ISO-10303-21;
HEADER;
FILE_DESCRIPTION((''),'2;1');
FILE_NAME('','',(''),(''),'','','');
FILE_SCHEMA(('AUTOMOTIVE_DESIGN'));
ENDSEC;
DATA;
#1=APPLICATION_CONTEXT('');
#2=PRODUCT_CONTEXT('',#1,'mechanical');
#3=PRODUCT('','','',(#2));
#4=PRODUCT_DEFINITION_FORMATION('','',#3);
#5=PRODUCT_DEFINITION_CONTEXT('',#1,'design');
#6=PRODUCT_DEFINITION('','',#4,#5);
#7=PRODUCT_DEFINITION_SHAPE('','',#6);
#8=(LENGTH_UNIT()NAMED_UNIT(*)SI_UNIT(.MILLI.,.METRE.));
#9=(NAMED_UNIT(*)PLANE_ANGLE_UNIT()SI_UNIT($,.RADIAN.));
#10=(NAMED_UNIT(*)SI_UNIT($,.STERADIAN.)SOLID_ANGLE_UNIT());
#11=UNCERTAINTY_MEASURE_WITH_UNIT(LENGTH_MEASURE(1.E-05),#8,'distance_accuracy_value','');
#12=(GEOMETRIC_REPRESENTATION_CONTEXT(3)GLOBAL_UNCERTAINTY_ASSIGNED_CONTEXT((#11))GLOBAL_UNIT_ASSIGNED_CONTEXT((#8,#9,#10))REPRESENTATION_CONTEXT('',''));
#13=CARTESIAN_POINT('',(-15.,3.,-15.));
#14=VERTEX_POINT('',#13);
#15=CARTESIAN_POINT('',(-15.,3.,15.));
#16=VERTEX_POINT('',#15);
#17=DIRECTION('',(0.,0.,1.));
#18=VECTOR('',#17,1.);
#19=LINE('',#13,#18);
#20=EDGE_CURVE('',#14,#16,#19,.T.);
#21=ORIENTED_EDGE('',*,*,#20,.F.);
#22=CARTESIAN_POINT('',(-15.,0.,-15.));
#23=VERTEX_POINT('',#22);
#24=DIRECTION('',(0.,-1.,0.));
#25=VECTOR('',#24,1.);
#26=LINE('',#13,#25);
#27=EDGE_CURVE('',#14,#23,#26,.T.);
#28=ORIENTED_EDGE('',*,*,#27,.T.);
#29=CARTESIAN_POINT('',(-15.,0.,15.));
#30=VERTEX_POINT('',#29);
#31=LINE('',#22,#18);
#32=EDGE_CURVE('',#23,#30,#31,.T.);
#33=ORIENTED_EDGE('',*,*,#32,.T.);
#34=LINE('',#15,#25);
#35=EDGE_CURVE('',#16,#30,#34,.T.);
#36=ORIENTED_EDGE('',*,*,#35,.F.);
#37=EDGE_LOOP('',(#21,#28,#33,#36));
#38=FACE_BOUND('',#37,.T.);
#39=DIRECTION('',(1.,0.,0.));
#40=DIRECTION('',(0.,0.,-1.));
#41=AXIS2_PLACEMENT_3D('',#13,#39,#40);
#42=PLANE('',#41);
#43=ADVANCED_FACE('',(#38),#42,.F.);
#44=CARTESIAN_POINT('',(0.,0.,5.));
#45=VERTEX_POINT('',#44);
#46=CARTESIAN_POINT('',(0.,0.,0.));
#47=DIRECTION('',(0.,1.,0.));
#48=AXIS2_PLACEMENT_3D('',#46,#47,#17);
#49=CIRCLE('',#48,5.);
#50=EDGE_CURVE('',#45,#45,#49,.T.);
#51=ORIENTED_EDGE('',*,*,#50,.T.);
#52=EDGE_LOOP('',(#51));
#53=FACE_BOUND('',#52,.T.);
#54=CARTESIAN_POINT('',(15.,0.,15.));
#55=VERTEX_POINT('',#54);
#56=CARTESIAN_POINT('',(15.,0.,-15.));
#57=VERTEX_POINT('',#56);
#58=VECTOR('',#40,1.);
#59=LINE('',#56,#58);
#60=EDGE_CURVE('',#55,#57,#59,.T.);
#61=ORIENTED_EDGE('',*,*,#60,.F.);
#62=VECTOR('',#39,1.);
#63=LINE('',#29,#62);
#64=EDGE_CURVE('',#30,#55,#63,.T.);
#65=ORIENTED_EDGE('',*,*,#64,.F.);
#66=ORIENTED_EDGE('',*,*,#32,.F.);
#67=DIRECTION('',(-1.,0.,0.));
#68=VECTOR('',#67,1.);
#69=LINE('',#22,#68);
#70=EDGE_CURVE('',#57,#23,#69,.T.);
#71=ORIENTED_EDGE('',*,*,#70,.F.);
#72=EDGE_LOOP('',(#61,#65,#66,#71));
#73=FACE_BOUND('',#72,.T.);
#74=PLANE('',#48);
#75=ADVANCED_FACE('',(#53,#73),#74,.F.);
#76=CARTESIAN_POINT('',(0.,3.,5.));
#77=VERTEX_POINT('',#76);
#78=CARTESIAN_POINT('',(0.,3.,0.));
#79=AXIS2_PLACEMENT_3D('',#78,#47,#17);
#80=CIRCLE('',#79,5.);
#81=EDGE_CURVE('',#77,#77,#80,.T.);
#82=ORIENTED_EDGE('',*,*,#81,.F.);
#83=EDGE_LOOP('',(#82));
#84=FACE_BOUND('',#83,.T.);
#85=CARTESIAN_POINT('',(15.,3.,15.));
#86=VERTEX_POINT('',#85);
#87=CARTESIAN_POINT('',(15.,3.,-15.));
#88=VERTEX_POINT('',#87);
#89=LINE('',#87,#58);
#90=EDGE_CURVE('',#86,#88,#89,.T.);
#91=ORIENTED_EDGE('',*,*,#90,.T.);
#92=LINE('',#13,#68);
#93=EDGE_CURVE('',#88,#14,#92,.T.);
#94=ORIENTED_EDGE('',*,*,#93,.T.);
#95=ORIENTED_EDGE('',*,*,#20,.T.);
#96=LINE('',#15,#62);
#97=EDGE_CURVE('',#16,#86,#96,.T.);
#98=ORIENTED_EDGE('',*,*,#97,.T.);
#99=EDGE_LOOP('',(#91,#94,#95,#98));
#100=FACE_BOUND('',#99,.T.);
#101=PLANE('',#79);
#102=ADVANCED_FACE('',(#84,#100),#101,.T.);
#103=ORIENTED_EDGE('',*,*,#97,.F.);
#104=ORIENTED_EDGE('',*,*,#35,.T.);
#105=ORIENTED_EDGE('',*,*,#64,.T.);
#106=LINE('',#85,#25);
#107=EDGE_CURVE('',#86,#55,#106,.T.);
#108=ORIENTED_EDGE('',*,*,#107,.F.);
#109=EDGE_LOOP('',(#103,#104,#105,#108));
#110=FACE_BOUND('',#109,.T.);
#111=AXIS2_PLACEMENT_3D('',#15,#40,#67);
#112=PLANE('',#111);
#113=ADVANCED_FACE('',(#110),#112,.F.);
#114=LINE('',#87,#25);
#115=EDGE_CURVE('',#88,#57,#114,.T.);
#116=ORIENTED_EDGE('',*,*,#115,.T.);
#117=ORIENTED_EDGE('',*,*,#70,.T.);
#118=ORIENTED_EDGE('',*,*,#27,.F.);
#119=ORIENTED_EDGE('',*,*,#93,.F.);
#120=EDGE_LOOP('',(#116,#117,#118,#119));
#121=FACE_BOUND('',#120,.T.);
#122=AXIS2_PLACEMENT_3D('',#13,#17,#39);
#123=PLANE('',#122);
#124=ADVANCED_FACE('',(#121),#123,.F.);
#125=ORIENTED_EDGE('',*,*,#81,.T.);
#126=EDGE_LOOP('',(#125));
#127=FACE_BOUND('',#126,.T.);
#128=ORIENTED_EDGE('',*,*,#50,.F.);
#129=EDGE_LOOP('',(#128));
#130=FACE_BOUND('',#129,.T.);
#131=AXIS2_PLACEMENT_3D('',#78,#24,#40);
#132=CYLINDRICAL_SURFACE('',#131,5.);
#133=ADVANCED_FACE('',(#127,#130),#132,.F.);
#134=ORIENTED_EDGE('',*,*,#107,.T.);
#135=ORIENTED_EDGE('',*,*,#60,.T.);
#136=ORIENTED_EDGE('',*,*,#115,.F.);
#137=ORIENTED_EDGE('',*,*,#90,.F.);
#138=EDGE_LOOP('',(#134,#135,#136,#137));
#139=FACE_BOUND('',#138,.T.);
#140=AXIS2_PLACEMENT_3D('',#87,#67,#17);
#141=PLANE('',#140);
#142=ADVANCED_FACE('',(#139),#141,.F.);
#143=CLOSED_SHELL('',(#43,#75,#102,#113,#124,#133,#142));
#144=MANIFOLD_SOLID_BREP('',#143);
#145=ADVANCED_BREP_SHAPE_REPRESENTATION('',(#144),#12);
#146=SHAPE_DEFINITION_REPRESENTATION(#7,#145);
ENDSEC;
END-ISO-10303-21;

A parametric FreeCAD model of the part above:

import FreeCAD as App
import Part
import Sketcher

V = App.Vector


def add_polygon(sketch, points):
    """Adds a closed chain of lines whose ends are joined by coincident constraints."""
    first, n = sketch.GeometryCount, len(points)
    for a, b in zip(points, points[1:] + points[:1]):
        sketch.addGeometry(Part.LineSegment(App.Vector(*a, 0), App.Vector(*b, 0)), False)
    for i in range(n):
        sketch.addConstraint(Sketcher.Constraint("Coincident", first + i, 2, first + (i + 1) % n, 1))

doc = App.newDocument("Part")
body = doc.addObject("PartDesign::Body", "Body")

sketch1 = body.newObject("Sketcher::SketchObject", "Sketch")
sketch1.AttachmentSupport = (doc.getObject("XZ_Plane"), [""])
sketch1.MapMode = "FlatFace"
add_polygon(sketch1, [(-15, -15), (-15, 15), (15, 15), (15, -15)])
sketch1.addGeometry(Part.Circle(V(0, 0, 0), V(0, 0, 1), 5), False)
sketch1.addConstraint([
    Sketcher.Constraint("Vertical", 0),
    Sketcher.Constraint("Horizontal", 1),
    Sketcher.Constraint("Vertical", 2),
    Sketcher.Constraint("Horizontal", 3),
    Sketcher.Constraint("Coincident", 4, 3, -1, 1),
    Sketcher.Constraint("Symmetric", 0, 2, 2, 2, -1, 1),
    Sketcher.Constraint("Equal", 3, 0),
    Sketcher.Constraint("Diameter", 4, 10.0),
    Sketcher.Constraint("DistanceX", 1, 1, 1, 2, 30.0),
])
pad1 = body.newObject("PartDesign::Pad", "Pad")
pad1.Profile = sketch1
pad1.Length = 3
pad1.Reversed = True

doc.recompute()
